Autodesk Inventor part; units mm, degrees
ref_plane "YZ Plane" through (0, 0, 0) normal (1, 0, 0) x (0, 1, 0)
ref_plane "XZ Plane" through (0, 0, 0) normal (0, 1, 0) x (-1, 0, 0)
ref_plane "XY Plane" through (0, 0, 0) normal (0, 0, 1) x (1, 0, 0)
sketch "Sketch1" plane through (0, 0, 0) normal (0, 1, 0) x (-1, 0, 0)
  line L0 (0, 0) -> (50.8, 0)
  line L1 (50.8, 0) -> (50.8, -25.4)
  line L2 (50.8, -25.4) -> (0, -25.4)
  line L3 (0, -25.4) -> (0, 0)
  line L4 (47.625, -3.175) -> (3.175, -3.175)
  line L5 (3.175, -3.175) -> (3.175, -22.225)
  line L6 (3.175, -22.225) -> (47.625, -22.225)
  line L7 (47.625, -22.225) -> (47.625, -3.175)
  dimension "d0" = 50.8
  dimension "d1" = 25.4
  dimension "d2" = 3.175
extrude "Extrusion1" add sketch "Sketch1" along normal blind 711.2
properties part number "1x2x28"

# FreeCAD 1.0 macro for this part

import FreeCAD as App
import Part
import Sketcher

V = App.Vector
Q = App.Units.Quantity


def add_polygon(sketch, points):
    """Adds a closed chain of lines whose ends are joined by coincident constraints."""
    first, n = sketch.GeometryCount, len(points)
    for a, b in zip(points, points[1:] + points[:1]):
        sketch.addGeometry(Part.LineSegment(App.Vector(*a, 0), App.Vector(*b, 0)), False)
    for i in range(n):
        sketch.addConstraint(Sketcher.Constraint("Coincident", first + i, 2, first + (i + 1) % n, 1))

doc = App.newDocument("Part")
body = doc.addObject("PartDesign::Body", "Body")

sketch1 = body.newObject("Sketcher::SketchObject", "Sketch")
sketch1.AttachmentSupport = (doc.getObject("XZ_Plane"), [""])
sketch1.MapMode = "FlatFace"
add_polygon(sketch1, [(-51, 0), (0, 0), (0, -25), (-51, -25)])
add_polygon(sketch1, [(-3, -3), (-48, -3), (-48, -22), (-3, -22)])
sketch1.addConstraint([
    Sketcher.Constraint("Horizontal", 0),
    Sketcher.Constraint("Vertical", 1),
    Sketcher.Constraint("Horizontal", 2),
    Sketcher.Constraint("Vertical", 3),
    Sketcher.Constraint("Horizontal", 4),
    Sketcher.Constraint("Vertical", 5),
    Sketcher.Constraint("Horizontal", 6),
    Sketcher.Constraint("Vertical", 7),
    Sketcher.Constraint("Coincident", 0, 2, -1, 1),
    Sketcher.Constraint("DistanceX", 0, 1, 0, 2, Q("2 in")),
    Sketcher.Constraint("DistanceY", 1, 2, 1, 1, Q("1 in")),
    Sketcher.Constraint("DistanceY", 4, 2, -1, 1, Q("0.125 in")),
    Sketcher.Constraint("DistanceX", 6, 2, -1, 1, Q("0.125 in")),
    Sketcher.Constraint("DistanceX", 3, 2, 4, 2, Q("0.125 in")),
    Sketcher.Constraint("DistanceY", 2, 2, 5, 2, Q("0.125 in")),
])
pad1 = body.newObject("PartDesign::Pad", "Pad")
pad1.Profile = sketch1
pad1.Length = Q("28 in")
pad1.Reversed = True

doc.recompute()
